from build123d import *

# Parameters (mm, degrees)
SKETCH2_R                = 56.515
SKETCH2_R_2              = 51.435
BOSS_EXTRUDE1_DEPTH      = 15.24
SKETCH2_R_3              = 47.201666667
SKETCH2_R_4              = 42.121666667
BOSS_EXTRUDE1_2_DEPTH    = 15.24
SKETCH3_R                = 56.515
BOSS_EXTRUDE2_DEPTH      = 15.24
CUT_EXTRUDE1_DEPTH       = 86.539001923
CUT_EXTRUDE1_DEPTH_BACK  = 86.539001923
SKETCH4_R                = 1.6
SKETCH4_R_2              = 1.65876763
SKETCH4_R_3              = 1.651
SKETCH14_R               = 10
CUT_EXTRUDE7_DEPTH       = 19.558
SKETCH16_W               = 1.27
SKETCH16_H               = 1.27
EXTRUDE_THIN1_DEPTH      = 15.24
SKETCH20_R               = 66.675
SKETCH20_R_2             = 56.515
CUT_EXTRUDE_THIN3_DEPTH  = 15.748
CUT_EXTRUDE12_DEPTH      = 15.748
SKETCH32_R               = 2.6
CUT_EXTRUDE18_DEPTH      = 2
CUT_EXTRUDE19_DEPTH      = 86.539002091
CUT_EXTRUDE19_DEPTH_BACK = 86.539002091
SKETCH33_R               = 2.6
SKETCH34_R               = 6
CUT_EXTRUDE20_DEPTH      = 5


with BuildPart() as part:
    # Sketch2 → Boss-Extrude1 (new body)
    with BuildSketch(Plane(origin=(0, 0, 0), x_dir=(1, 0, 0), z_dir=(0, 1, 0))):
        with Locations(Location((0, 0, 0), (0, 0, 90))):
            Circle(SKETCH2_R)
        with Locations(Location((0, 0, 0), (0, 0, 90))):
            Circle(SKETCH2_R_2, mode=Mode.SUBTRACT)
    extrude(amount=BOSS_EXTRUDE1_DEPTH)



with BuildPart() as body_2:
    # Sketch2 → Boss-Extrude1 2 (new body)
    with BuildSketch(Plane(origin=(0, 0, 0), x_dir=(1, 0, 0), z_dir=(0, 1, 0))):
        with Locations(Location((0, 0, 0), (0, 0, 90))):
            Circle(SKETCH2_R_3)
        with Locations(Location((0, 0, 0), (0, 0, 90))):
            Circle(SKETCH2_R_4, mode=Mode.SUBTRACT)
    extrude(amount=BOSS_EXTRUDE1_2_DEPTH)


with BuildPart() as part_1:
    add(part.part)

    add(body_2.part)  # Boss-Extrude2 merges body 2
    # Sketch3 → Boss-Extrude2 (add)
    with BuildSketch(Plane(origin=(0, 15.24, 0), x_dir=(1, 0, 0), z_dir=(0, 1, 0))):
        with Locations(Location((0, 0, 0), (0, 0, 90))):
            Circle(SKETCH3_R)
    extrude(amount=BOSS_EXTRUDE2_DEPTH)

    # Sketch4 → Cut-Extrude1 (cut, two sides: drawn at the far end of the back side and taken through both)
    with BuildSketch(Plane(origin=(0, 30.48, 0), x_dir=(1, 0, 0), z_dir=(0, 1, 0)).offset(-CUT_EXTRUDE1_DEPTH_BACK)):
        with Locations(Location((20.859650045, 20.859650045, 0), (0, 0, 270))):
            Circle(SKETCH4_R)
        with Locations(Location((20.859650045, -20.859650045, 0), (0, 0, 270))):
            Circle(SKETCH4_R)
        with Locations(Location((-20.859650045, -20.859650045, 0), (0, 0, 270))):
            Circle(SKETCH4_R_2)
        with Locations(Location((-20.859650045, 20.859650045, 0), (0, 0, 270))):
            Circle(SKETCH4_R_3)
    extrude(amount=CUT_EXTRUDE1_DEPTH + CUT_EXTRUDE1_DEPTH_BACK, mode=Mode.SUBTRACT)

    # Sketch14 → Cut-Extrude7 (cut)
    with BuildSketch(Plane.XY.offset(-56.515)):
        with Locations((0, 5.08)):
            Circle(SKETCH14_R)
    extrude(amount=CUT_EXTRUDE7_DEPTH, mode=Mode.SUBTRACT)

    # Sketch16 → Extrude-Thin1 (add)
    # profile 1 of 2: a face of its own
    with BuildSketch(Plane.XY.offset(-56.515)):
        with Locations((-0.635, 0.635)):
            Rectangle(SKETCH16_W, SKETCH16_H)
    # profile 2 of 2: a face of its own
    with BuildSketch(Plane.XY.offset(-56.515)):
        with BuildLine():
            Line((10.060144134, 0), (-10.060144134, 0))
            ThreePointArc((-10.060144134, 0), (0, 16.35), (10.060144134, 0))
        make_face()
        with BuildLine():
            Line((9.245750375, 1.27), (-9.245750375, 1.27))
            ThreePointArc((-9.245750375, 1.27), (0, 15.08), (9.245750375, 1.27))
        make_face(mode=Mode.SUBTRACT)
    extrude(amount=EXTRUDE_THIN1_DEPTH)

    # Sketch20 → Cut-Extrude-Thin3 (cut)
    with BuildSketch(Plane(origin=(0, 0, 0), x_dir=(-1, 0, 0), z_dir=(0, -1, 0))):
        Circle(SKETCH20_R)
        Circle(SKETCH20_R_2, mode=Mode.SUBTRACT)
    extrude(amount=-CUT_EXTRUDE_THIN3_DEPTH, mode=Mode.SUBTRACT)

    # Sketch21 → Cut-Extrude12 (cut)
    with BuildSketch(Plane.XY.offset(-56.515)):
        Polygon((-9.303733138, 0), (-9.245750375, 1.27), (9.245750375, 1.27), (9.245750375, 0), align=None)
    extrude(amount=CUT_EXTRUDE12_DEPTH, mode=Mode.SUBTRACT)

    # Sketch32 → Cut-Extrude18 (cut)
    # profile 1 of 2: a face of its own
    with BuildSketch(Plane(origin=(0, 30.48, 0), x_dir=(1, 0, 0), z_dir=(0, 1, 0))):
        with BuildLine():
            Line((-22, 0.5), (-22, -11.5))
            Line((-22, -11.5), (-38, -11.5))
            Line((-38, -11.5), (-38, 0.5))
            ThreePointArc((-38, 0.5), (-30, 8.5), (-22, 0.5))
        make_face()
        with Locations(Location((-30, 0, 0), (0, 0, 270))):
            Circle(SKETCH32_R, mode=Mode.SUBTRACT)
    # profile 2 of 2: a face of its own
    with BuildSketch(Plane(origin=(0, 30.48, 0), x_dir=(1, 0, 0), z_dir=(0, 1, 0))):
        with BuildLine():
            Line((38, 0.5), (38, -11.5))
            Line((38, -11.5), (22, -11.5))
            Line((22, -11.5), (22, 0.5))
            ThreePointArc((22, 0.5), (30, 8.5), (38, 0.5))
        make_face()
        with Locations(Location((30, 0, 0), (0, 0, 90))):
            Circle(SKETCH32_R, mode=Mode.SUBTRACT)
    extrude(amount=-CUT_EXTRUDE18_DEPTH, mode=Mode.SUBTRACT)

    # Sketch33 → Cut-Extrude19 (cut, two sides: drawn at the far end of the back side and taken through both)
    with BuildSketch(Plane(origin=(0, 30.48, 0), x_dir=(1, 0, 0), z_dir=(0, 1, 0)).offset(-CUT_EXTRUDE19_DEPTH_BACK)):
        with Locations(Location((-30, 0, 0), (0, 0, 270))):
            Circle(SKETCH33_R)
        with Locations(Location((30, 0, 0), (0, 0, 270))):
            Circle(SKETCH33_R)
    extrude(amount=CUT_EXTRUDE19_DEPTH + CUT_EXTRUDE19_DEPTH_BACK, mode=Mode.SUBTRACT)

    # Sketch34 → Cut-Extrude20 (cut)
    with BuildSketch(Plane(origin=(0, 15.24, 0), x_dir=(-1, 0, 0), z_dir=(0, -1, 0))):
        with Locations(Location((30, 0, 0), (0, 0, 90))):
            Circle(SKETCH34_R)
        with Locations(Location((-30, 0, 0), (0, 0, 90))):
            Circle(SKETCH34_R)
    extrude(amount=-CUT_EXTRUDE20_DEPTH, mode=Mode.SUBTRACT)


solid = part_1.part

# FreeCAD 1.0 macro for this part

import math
import FreeCAD as App
import Part
import Sketcher
Q = App.Units.Quantity

doc = App.newDocument("Part")
params = doc.addObject("Spreadsheet::Sheet", "Params")
for row, (alias, value) in enumerate([
    ("sketch1_diameter", "4.45 in"),
    ("sketch1_diameter2", "4.05 in"),
    ("pad1_length", "0.6 in"),
    ("pad2_length", "0.6 in"),
    ("sketch3_diameter", "4.45 in"),
    ("pad3_length", "0.6 in"),
    ("sketch4_diameter", "0.13 in"),
    ("pocket2_length", "0.77 in"),
    ("pad4_length", "0.6 in"),
    ("sketch7_diameter", "5.25 in"),
    ("sketch7_diameter2", "4.45 in"),
    ("pocket3_length", "0.62 in"),
    ("sketch8_height", "0.05 in"),
    ("pocket4_length", "0.62 in"),
    ("pocket5_length", "2 mm"),
    ("pocket7_length", "5 mm"),
], start=1):
    params.set(f"A{row}", alias)
    params.set(f"B{row}", "=" + value)
    params.setAlias(f"B{row}", alias)

body = doc.addObject("PartDesign::Body", "Body")

# Sketch on XZ plane
sketch1 = body.newObject("Sketcher::SketchObject", "Sketch")
sketch1.AttachmentSupport = (doc.getObject("XZ_Plane"), [""])
sketch1.MapMode = "FlatFace"
sketch1.addGeometry([
    Part.Circle(App.Vector(0, 0, 0), App.Vector(0, 0, 1), 57),
    Part.Circle(App.Vector(0, 0, 0), App.Vector(0, 0, 1), 51),
], False)
sketch1.addConstraint([
    Sketcher.Constraint("Coincident", 0, 3, -1, 1),
    Sketcher.Constraint("Coincident", 1, 3, -1, 1),
    Sketcher.Constraint("Diameter", 0, Q("4.45 in")),
    Sketcher.Constraint("Diameter", 1, Q("4.05 in")),
])
sketch1.setExpression("Constraints[2]", "Params.sketch1_diameter")
sketch1.setExpression("Constraints[3]", "Params.sketch1_diameter2")
pad1 = body.newObject("PartDesign::Pad", "Pad")
pad1.Profile = sketch1
pad1.setExpression("Length", "Params.pad1_length")
pad1.Reversed = True
body2 = doc.addObject("PartDesign::Body", "Body001")

# Sketch on XZ plane
sketch2 = body2.newObject("Sketcher::SketchObject", "Sketch001")
sketch2.AttachmentSupport = (doc.getObject("XZ_Plane001"), [""])
sketch2.MapMode = "FlatFace"
sketch2.addGeometry([
    Part.Circle(App.Vector(0, 0, 0), App.Vector(0, 0, 1), 47),
    Part.Circle(App.Vector(0, 0, 0), App.Vector(0, 0, 1), 42),
], False)
sketch2.addConstraint([
    Sketcher.Constraint("Coincident", 0, 3, -1, 1),
    Sketcher.Constraint("Coincident", 1, 3, -1, 1),
    Sketcher.Constraint("Diameter", 0, 94.403333),
    Sketcher.Constraint("Diameter", 1, 84.243333),
])
pad2 = body2.newObject("PartDesign::Pad", "Pad001")
pad2.Profile = sketch2
pad2.setExpression("Length", "Params.pad2_length")
pad2.Reversed = True
body.AllowCompound = True
doc.recompute()

boolean = body.newObject("PartDesign::Boolean", "Boolean")
boolean.Type = "Fuse"
boolean.addObjects([body2])

# Sketch on XZ plane
sketch3 = body.newObject("Sketcher::SketchObject", "Sketch002")
sketch3.AttachmentSupport = (doc.getObject("XZ_Plane"), [""])
sketch3.MapMode = "FlatFace"
sketch3.AttachmentOffset = App.Placement(App.Vector(0, 0, -0.6 * 25.4), App.Rotation())
sketch3.addGeometry(Part.Circle(App.Vector(0, 0, 0), App.Vector(0, 0, 1), 57), False)
sketch3.addConstraint([
    Sketcher.Constraint("Coincident", 0, 3, -1, 1),
    Sketcher.Constraint("Diameter", 0, Q("4.45 in")),
])
sketch3.setExpression("Constraints[1]", "Params.sketch3_diameter")
pad3 = body.newObject("PartDesign::Pad", "Pad002")
pad3.Profile = sketch3
pad3.setExpression("Length", "Params.pad3_length")
pad3.Reversed = True

# Sketch on XZ plane
sketch4 = body.newObject("Sketcher::SketchObject", "Sketch003")
sketch4.AttachmentSupport = (doc.getObject("XZ_Plane"), [""])
sketch4.MapMode = "FlatFace"
sketch4.AttachmentOffset = App.Placement(App.Vector(0, 0, -1.2 * 25.4), App.Rotation())
sketch4.addGeometry([
    Part.Circle(App.Vector(20.9, -20.9, 0), App.Vector(0, 0, 1), 1.6),
    Part.Circle(App.Vector(20.9, 20.9, 0), App.Vector(0, 0, 1), 1.6),
    Part.Circle(App.Vector(-20.9, 20.9, 0), App.Vector(0, 0, 1), 1.7),
    Part.Circle(App.Vector(-20.9, -20.9, 0), App.Vector(0, 0, 1), 1.7),
], False)
sketch4.addConstraint([
    Sketcher.Constraint("Equal", 0, 1),
    Sketcher.Constraint("Symmetric", 0, 3, 2, 3, -1, 1),
    Sketcher.Constraint("Symmetric", 1, 3, 3, 3, -1, 1),
    Sketcher.Constraint("Symmetric", 1, 3, 2, 3, -2),
    Sketcher.Constraint("Diameter", 3, Q("0.13 in")),
    Sketcher.Constraint("Diameter", 0, 3.2),
    Sketcher.Constraint("Diameter", 2, 3.317535),
    Sketcher.Constraint("DistanceY", 0, 3, 1, 3, 41.7193),
    Sketcher.Constraint("DistanceX", 2, 3, 1, 3, 41.7193),
])
sketch4.setExpression("Constraints[4]", "Params.sketch4_diameter")
pocket1 = body.newObject("PartDesign::Pocket", "Pocket")
pocket1.Profile = sketch4
pocket1.Type = "ThroughAll"
pocket1.Midplane = True

# Sketch on XY plane
sketch5 = body.newObject("Sketcher::SketchObject", "Sketch004")
sketch5.AttachmentSupport = (doc.getObject("XY_Plane"), [""])
sketch5.MapMode = "FlatFace"
sketch5.AttachmentOffset = App.Placement(App.Vector(0, 0, -2.225 * 25.4), App.Rotation())
sketch5.addGeometry(Part.Circle(App.Vector(0, 5, 0), App.Vector(0, 0, 1), 10), False)
sketch5.addConstraint([
    Sketcher.Constraint("PointOnObject", 0, 3, -2),
    Sketcher.Constraint("DistanceY", -1, 1, 0, 3, Q("0.2 in")),
    Sketcher.Constraint("Diameter", 0, 20.0),
])
pocket2 = body.newObject("PartDesign::Pocket", "Pocket001")
pocket2.Profile = sketch5
pocket2.setExpression("Length", "Params.pocket2_length")
pocket2.Reversed = True

# Sketch on XY plane
sketch6 = body.newObject("Sketcher::SketchObject", "Sketch005")
sketch6.AttachmentSupport = (doc.getObject("XY_Plane"), [""])
sketch6.MapMode = "FlatFace"
sketch6.AttachmentOffset = App.Placement(App.Vector(0, 0, -2.225 * 25.4), App.Rotation())
sketch6.addGeometry([
    Part.ArcOfCircle(Part.Circle(App.Vector(0, 5, 0), App.Vector(0, 0, 1), 11), math.radians(-27), math.radians(207)),
    Part.LineSegment(App.Vector(-10, 0, 0), App.Vector(10, 0, 0)),
    Part.ArcOfCircle(Part.Circle(App.Vector(0, 5, 0), App.Vector(0, 0, 1), 10), math.radians(-22), math.radians(202)),
    Part.LineSegment(App.Vector(9, 1, 0), App.Vector(-9, 1, 0)),
], False)
sketch6.addConstraint([
    Sketcher.Constraint("Coincident", 0, 1, 1, 2),
    Sketcher.Constraint("Coincident", 1, 1, 0, 2),
    Sketcher.Constraint("Coincident", 2, 1, 3, 1),
    Sketcher.Constraint("Coincident", 3, 2, 2, 2),
    Sketcher.Constraint("Horizontal", 1),
    Sketcher.Constraint("Horizontal", 3),
    Sketcher.Constraint("Coincident", 2, 3, 0, 3),
    Sketcher.Constraint("Symmetric", 0, 1, 1, 1, -1, 1),
    Sketcher.Constraint("DistanceY", -1, 1, 0, 3, Q("0.2 in")),
    Sketcher.Constraint("DistanceY", -1, 1, 2, 1, Q("0.05 in")),
    Sketcher.Constraint("Radius", 0, 11.27),
    Sketcher.Constraint("Radius", 2, 10.0),
])
pad4 = body.newObject("PartDesign::Pad", "Pad003")
pad4.Profile = sketch6
pad4.setExpression("Length", "Params.pad4_length")

# Sketch on XZ plane
sketch7 = body.newObject("Sketcher::SketchObject", "Sketch006")
sketch7.AttachmentSupport = (doc.getObject("XZ_Plane"), [""])
sketch7.MapMode = "FlatFace"
sketch7.addGeometry([
    Part.Circle(App.Vector(0, 0, 0), App.Vector(0, 0, 1), 67),
    Part.Circle(App.Vector(0, 0, 0), App.Vector(0, 0, 1), 57),
], False)
sketch7.addConstraint([
    Sketcher.Constraint("Coincident", 0, 3, -1, 1),
    Sketcher.Constraint("Coincident", 1, 3, -1, 1),
    Sketcher.Constraint("Diameter", 0, Q("5.25 in")),
    Sketcher.Constraint("Diameter", 1, Q("4.45 in")),
])
sketch7.setExpression("Constraints[2]", "Params.sketch7_diameter")
sketch7.setExpression("Constraints[3]", "Params.sketch7_diameter2")
pocket3 = body.newObject("PartDesign::Pocket", "Pocket002")
pocket3.Profile = sketch7
pocket3.setExpression("Length", "Params.pocket3_length")

# Sketch on XY plane
sketch8 = body.newObject("Sketcher::SketchObject", "Sketch007")
sketch8.AttachmentSupport = (doc.getObject("XY_Plane"), [""])
sketch8.MapMode = "FlatFace"
sketch8.AttachmentOffset = App.Placement(App.Vector(0, 0, -2.225 * 25.4), App.Rotation())
sketch8.addGeometry([
    Part.LineSegment(App.Vector(-9.2, 1.3, 0), App.Vector(-9.3, 0, 0)),
    Part.LineSegment(App.Vector(-9.3, 0, 0), App.Vector(9.2, 0, 0)),
    Part.LineSegment(App.Vector(9.2, 0, 0), App.Vector(9.2, 1.3, 0)),
    Part.LineSegment(App.Vector(9.2, 1.3, 0), App.Vector(-9.2, 1.3, 0)),
], False)
sketch8.addConstraint([
    Sketcher.Constraint("Coincident", 0, 2, 1, 1),
    Sketcher.Constraint("Coincident", 1, 2, 2, 1),
    Sketcher.Constraint("Coincident", 2, 2, 3, 1),
    Sketcher.Constraint("Coincident", 3, 2, 0, 1),
    Sketcher.Constraint("Horizontal", 1),
    Sketcher.Constraint("Vertical", 2),
    Sketcher.Constraint("Horizontal", 3),
    Sketcher.Constraint("PointOnObject", 0, 2, -1),
    Sketcher.Constraint("DistanceY", 2, 1, 2, 2, Q("0.05 in")),
    Sketcher.Constraint("DistanceX", 3, 2, 3, 1, 18.491501),
    Sketcher.Constraint("DistanceX", 1, 1, 1, 2, 18.549484),
    Sketcher.Constraint("DistanceX", -1, 1, 1, 2, 9.24575),
])
sketch8.setExpression("Constraints[8]", "Params.sketch8_height")
pocket4 = body.newObject("PartDesign::Pocket", "Pocket003")
pocket4.Profile = sketch8
pocket4.setExpression("Length", "Params.pocket4_length")
pocket4.Reversed = True

# Sketch on XZ plane
sketch9 = body.newObject("Sketcher::SketchObject", "Sketch008")
sketch9.AttachmentSupport = (doc.getObject("XZ_Plane"), [""])
sketch9.MapMode = "FlatFace"
sketch9.AttachmentOffset = App.Placement(App.Vector(0, 0, -1.2 * 25.4), App.Rotation())
sketch9.addGeometry([
    Part.LineSegment(App.Vector(-22, 11.5, 0), App.Vector(-22, -0.5, 0)),  # 0
    Part.ArcOfCircle(Part.Circle(App.Vector(-30, -0.5, 0), App.Vector(0, 0, 1), 8), math.radians(180), math.radians(360)),  # 1
    Part.LineSegment(App.Vector(-38, -0.5, 0), App.Vector(-38, 11.5, 0)),  # 2
    Part.LineSegment(App.Vector(-38, 11.5, 0), App.Vector(-22, 11.5, 0)),  # 3
    Part.Circle(App.Vector(-30, 0, 0), App.Vector(0, 0, 1), 2.6),  # 4
    Part.LineSegment(App.Vector(38, 11.5, 0), App.Vector(38, -0.5, 0)),  # 5
    Part.ArcOfCircle(Part.Circle(App.Vector(30, -0.5, 0), App.Vector(0, 0, 1), 8), math.radians(180), math.radians(360)),  # 6
    Part.LineSegment(App.Vector(22, -0.5, 0), App.Vector(22, 11.5, 0)),  # 7
    Part.LineSegment(App.Vector(22, 11.5, 0), App.Vector(38, 11.5, 0)),  # 8
    Part.Circle(App.Vector(30, 0, 0), App.Vector(0, 0, 1), 2.6),  # 9
], False)
sketch9.addConstraint([
    Sketcher.Constraint("Tangent", 0, 2, 1, 2),
    Sketcher.Constraint("Tangent", 1, 1, 2, 1),
    Sketcher.Constraint("Coincident", 2, 2, 3, 1),
    Sketcher.Constraint("Coincident", 3, 2, 0, 1),
    Sketcher.Constraint("Tangent", 5, 2, 6, 2),
    Sketcher.Constraint("Tangent", 6, 1, 7, 1),
    Sketcher.Constraint("Coincident", 7, 2, 8, 1),
    Sketcher.Constraint("Coincident", 8, 2, 5, 1),
    Sketcher.Constraint("Vertical", 0),
    Sketcher.Constraint("Vertical", 2),
    Sketcher.Constraint("Horizontal", 3),
    Sketcher.Constraint("Vertical", 5),
    Sketcher.Constraint("Vertical", 7),
    Sketcher.Constraint("Horizontal", 8),
    Sketcher.Constraint("Equal", 1, 6),
    Sketcher.Constraint("Equal", 4, 9),
    Sketcher.Constraint("Symmetric", 4, 3, 9, 3, -1, 1),
    Sketcher.Constraint("Symmetric", 1, 3, 6, 3, -2),
    Sketcher.Constraint("PointOnObject", 4, 3, -1),
    Sketcher.Constraint("Horizontal", 3, 2, 7, 2),
    Sketcher.Constraint("Vertical", 1, 3, 4, 3),
    Sketcher.Constraint("Diameter", 4, 5.2),
    Sketcher.Constraint("Radius", 1, 8.0),
    Sketcher.Constraint("DistanceY", 0, 2, 0, 1, 12.0),
    Sketcher.Constraint("DistanceX", 1, 3, -1, 1, 30.0),
    Sketcher.Constraint("DistanceY", 1, 3, -1, 1, 0.5),
])
pocket5 = body.newObject("PartDesign::Pocket", "Pocket004")
pocket5.Profile = sketch9
pocket5.setExpression("Length", "Params.pocket5_length")
pocket5.Reversed = True

# Sketch on XZ plane
sketch10 = body.newObject("Sketcher::SketchObject", "Sketch009")
sketch10.AttachmentSupport = (doc.getObject("XZ_Plane"), [""])
sketch10.MapMode = "FlatFace"
sketch10.AttachmentOffset = App.Placement(App.Vector(0, 0, -1.2 * 25.4), App.Rotation())
sketch10.addGeometry([
    Part.Circle(App.Vector(-30, 0, 0), App.Vector(0, 0, 1), 2.6),
    Part.Circle(App.Vector(30, 0, 0), App.Vector(0, 0, 1), 2.6),
], False)
sketch10.addConstraint([
    Sketcher.Constraint("Equal", 0, 1),
    Sketcher.Constraint("Symmetric", 0, 3, 1, 3, -1, 1),
    Sketcher.Constraint("PointOnObject", 0, 3, -1),
    Sketcher.Constraint("Diameter", 0, 5.2),
    Sketcher.Constraint("DistanceX", 0, 3, -1, 1, 30.0),
])
pocket6 = body.newObject("PartDesign::Pocket", "Pocket005")
pocket6.Profile = sketch10
pocket6.Type = "ThroughAll"
pocket6.Midplane = True

# Sketch on XZ plane
sketch11 = body.newObject("Sketcher::SketchObject", "Sketch010")
sketch11.AttachmentSupport = (doc.getObject("XZ_Plane"), [""])
sketch11.MapMode = "FlatFace"
sketch11.AttachmentOffset = App.Placement(App.Vector(0, 0, -0.6 * 25.4), App.Rotation())
sketch11.addGeometry([
    Part.Circle(App.Vector(-30, 0, 0), App.Vector(0, 0, 1), 6),
    Part.Circle(App.Vector(30, 0, 0), App.Vector(0, 0, 1), 6),
], False)
sketch11.addConstraint([
    Sketcher.Constraint("Equal", 0, 1),
    Sketcher.Constraint("Symmetric", 0, 3, 1, 3, -1, 1),
    Sketcher.Constraint("PointOnObject", 0, 3, -1),
    Sketcher.Constraint("Diameter", 0, 12.0),
    Sketcher.Constraint("DistanceX", 0, 3, -1, 1, 30.0),
])
pocket7 = body.newObject("PartDesign::Pocket", "Pocket006")
pocket7.Profile = sketch11
pocket7.setExpression("Length", "Params.pocket7_length")

doc.recompute()
